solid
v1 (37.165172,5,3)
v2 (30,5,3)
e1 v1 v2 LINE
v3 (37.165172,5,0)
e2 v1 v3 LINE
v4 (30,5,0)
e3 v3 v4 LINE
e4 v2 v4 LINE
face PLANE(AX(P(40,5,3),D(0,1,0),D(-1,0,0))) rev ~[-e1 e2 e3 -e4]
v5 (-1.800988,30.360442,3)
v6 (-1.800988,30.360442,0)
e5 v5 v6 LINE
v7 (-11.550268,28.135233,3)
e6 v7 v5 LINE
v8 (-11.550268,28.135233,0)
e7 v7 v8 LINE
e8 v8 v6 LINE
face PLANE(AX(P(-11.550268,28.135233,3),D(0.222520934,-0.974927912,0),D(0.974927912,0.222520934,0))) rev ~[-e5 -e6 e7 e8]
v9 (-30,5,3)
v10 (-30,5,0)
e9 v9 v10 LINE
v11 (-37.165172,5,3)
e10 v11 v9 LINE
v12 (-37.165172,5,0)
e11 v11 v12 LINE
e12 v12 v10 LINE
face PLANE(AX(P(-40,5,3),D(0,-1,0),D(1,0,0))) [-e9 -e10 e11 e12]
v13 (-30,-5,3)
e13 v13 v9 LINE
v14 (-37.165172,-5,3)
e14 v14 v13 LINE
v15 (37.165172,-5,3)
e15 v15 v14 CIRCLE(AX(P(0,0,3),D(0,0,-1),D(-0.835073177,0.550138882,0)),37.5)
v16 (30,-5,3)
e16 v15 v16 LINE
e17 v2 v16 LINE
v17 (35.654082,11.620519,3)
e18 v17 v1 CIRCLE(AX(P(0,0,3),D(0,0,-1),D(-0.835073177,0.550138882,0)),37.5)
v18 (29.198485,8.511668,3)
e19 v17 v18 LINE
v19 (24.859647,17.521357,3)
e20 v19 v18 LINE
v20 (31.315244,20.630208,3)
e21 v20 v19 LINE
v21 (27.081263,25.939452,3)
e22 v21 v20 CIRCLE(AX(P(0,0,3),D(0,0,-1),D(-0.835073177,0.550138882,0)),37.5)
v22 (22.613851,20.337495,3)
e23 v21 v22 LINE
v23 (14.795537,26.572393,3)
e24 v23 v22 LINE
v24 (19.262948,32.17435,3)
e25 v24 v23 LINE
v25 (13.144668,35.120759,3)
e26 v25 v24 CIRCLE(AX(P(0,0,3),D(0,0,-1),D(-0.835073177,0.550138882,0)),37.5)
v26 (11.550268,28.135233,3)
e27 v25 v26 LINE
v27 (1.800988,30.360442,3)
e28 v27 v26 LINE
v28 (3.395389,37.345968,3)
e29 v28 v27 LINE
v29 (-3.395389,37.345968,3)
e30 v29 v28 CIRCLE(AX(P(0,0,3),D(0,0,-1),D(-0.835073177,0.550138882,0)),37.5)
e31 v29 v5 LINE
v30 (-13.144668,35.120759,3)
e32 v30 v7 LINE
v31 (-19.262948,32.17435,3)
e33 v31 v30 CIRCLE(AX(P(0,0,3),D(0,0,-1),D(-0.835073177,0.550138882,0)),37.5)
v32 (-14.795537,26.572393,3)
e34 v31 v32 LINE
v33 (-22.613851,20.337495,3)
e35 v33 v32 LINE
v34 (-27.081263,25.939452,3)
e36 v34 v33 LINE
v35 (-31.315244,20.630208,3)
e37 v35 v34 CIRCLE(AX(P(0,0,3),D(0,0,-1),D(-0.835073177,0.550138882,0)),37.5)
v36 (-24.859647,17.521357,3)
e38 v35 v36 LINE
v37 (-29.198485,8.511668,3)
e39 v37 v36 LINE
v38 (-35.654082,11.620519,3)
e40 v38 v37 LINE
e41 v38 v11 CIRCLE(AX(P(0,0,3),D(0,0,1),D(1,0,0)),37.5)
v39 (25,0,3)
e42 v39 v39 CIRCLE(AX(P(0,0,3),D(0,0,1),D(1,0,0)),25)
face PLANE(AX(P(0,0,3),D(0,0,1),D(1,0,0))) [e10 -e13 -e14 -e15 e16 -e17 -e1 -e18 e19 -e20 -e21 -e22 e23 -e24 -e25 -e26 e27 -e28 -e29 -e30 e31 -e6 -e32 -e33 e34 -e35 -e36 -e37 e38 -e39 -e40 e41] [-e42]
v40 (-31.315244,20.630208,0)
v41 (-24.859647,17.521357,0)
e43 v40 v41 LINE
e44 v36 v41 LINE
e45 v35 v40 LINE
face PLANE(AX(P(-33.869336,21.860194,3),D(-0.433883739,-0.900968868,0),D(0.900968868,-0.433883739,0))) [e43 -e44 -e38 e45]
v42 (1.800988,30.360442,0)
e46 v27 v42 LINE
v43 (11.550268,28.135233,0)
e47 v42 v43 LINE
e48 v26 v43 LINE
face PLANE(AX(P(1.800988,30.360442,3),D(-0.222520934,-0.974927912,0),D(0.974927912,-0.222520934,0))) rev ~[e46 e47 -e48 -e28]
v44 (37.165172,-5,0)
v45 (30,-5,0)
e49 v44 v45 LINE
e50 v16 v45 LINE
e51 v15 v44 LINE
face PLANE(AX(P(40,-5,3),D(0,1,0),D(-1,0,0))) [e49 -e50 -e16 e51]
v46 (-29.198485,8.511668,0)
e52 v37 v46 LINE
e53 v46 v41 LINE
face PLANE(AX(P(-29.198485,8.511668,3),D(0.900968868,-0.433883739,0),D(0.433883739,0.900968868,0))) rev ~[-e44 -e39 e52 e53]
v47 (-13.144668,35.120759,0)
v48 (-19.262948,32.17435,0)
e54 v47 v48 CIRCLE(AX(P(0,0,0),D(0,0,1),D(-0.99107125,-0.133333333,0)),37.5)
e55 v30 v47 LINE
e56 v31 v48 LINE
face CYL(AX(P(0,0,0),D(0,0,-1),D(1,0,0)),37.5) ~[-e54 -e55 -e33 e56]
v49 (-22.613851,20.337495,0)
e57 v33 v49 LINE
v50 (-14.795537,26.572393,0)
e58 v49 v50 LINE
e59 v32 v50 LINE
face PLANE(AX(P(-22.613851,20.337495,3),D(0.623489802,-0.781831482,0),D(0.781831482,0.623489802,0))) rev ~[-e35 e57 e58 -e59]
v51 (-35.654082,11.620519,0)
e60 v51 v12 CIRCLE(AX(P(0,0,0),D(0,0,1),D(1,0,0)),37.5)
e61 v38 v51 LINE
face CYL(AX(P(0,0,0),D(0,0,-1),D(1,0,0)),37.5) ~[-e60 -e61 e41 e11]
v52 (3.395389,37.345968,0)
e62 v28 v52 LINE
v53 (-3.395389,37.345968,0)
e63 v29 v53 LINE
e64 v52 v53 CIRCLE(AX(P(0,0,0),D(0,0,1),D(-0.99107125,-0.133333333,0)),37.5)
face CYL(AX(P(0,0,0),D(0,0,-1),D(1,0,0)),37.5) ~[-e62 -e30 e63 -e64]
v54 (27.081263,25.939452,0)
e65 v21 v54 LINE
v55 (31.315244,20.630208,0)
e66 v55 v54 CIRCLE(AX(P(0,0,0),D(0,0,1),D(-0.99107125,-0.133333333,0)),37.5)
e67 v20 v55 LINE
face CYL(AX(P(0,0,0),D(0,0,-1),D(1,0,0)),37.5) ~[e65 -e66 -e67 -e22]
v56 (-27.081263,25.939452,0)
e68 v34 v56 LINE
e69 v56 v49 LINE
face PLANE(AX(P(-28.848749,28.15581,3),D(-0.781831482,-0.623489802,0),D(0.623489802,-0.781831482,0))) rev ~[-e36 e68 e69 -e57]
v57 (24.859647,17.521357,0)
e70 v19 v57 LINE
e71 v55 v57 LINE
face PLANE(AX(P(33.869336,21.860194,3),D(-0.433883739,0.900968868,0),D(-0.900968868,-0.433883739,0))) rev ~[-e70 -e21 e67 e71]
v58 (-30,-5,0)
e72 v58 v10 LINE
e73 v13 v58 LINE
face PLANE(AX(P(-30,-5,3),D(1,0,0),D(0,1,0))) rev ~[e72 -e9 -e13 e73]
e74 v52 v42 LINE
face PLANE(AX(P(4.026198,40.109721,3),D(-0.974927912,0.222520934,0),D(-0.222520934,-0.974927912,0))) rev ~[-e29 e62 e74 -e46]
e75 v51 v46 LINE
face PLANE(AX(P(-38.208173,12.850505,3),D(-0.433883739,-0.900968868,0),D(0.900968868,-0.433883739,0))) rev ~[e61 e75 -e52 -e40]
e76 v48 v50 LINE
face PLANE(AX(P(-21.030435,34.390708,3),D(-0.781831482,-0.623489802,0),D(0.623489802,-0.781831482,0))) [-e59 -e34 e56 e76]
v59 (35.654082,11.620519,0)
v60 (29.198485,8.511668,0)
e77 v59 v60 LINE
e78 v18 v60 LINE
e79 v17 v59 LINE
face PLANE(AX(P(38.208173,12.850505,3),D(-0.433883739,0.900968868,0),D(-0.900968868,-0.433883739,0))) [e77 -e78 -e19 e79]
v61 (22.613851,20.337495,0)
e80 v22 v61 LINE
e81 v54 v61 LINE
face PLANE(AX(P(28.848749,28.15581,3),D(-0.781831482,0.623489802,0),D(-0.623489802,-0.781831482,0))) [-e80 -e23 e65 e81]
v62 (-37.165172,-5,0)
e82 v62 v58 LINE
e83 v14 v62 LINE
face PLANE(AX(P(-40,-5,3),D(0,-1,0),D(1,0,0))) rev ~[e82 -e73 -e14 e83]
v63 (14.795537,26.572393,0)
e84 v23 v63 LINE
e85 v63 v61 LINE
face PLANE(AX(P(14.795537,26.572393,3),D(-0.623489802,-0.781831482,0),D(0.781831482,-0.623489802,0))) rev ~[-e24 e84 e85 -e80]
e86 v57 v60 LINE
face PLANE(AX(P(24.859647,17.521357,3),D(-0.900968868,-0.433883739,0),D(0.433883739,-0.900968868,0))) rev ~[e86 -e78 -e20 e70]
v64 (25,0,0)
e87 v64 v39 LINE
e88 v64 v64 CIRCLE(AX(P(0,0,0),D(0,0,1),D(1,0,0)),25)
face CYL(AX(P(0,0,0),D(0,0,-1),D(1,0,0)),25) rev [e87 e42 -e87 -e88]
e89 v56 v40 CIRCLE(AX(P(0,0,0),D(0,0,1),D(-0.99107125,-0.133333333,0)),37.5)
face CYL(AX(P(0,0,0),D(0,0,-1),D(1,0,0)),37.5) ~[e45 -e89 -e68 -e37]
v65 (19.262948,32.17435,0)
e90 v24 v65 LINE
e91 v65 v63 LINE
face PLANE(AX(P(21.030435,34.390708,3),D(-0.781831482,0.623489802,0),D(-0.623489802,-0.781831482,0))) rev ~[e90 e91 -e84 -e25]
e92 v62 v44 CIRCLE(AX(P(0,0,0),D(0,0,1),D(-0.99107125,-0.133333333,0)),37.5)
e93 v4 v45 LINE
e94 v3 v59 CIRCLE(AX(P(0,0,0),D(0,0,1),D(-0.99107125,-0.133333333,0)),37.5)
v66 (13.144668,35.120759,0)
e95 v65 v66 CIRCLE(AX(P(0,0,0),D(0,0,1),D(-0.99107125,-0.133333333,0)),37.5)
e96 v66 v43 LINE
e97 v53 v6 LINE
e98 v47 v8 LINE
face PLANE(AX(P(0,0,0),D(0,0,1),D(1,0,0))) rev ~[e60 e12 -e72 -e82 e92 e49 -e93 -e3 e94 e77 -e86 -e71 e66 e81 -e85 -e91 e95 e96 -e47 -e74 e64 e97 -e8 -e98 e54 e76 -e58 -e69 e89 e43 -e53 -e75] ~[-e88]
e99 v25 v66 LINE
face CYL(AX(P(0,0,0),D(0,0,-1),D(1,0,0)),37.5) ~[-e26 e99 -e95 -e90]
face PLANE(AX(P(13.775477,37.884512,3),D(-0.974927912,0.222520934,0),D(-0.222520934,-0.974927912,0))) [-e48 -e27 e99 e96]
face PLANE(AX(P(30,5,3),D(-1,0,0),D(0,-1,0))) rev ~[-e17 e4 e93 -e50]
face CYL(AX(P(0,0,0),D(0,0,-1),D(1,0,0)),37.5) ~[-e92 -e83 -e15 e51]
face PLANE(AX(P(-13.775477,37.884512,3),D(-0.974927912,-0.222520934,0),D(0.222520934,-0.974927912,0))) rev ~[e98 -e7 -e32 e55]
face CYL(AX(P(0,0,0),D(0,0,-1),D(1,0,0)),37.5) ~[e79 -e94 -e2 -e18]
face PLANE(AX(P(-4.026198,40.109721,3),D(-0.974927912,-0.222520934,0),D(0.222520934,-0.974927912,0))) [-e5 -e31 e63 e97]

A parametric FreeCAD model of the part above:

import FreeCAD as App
import Part
import Sketcher
from FreeCAD import Vector

doc = App.newDocument("Part")
body = doc.addObject("PartDesign::Body", "Body")

sketch1 = body.newObject("Sketcher::SketchObject", "Sketch")
sketch1.AttachmentSupport = (doc.getObject("XY_Plane"), [""])
sketch1.MapMode = "FlatFace"
sketch1.addGeometry(Part.Circle(Vector(0, 0, 0), Vector(0, 0, 1), 38), False)
sketch1.addGeometry(Part.Circle(Vector(0, 0, 0), Vector(0, 0, 1), 25), False)
sketch1.addConstraint(Sketcher.Constraint("Coincident", 0, 3, -1, 1))
sketch1.addConstraint(Sketcher.Constraint("Coincident", 1, 3, -1, 1))
sketch1.addConstraint(Sketcher.Constraint("Diameter", 0, 75.0))
sketch1.addConstraint(Sketcher.Constraint("Diameter", 1, 50.0))
pad1 = body.newObject("PartDesign::Pad", "Pad")
pad1.Profile = sketch1
pad1.Length = 3

sketch2 = body.newObject("Sketcher::SketchObject", "Sketch001")
sketch2.AttachmentSupport = (doc.getObject("XY_Plane"), [""])
sketch2.MapMode = "FlatFace"
sketch2.AttachmentOffset = App.Placement(Vector(0, 0, 3), App.Rotation())
sketch2.addGeometry(Part.LineSegment(Vector(-40, 5, 0), Vector(-40, -5, 0)), False)
sketch2.addGeometry(Part.LineSegment(Vector(-40, -5, 0), Vector(-30, -5, 0)), False)
sketch2.addGeometry(Part.LineSegment(Vector(-30, -5, 0), Vector(-30, 5, 0)), False)
sketch2.addGeometry(Part.LineSegment(Vector(-30, 5, 0), Vector(-40, 5, 0)), False)
sketch2.addConstraint(Sketcher.Constraint("Coincident", 0, 2, 1, 1))
sketch2.addConstraint(Sketcher.Constraint("Coincident", 1, 2, 2, 1))
sketch2.addConstraint(Sketcher.Constraint("Coincident", 2, 2, 3, 1))
sketch2.addConstraint(Sketcher.Constraint("Coincident", 3, 2, 0, 1))
sketch2.addConstraint(Sketcher.Constraint("Vertical", 0))
sketch2.addConstraint(Sketcher.Constraint("Horizontal", 1))
sketch2.addConstraint(Sketcher.Constraint("Vertical", 2))
sketch2.addConstraint(Sketcher.Constraint("Horizontal", 3))
sketch2.addConstraint(Sketcher.Constraint("Equal", 3, 0))
sketch2.addConstraint(Sketcher.Constraint("DistanceX", 1, 1, 1, 2, 10.0))
sketch2.addConstraint(Sketcher.Constraint("DistanceX", 0, 2, -1, 1, 40.0))
sketch2.addConstraint(Sketcher.Constraint("DistanceY", 0, 2, -1, 1, 5.0))
pocket1 = body.newObject("PartDesign::Pocket", "Pocket")
pocket1.Profile = sketch2
pocket1.Type = "ThroughAll"
doc.recompute()

polarpattern = body.newObject("PartDesign::PolarPattern", "PolarPattern")
polarpattern.Originals = [pocket1]
polarpattern.Axis = (doc.getObject("Z_Axis"), [""])
polarpattern.Angle = 180
polarpattern.Occurrences = 8
polarpattern.Reversed = True
body.Tip = polarpattern

doc.recompute()
